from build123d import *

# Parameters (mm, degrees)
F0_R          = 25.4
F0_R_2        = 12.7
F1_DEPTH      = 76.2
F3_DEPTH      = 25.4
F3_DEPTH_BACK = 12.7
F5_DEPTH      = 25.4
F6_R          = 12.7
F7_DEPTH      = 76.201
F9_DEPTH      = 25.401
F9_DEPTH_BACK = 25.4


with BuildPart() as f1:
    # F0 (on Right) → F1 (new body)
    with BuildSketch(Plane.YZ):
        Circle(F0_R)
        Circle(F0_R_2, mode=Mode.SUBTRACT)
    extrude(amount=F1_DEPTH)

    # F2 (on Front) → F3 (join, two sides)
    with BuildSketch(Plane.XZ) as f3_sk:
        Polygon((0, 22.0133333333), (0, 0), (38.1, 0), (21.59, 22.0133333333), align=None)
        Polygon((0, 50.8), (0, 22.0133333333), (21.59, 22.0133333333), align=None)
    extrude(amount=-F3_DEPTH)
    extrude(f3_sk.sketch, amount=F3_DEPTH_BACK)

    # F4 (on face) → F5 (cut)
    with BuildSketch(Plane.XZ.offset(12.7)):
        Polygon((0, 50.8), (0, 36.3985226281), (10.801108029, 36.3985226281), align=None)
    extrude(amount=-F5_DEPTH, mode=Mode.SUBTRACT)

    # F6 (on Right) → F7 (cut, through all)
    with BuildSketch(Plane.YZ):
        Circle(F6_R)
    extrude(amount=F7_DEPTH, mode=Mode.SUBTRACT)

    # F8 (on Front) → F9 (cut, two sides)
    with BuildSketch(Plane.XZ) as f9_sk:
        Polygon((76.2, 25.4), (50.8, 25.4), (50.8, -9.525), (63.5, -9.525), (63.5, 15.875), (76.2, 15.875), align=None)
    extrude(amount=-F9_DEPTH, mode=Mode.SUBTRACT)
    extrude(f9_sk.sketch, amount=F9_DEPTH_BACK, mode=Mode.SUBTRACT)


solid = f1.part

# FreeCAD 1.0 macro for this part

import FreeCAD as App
import Part
import Sketcher
from FreeCAD import Vector
Q = App.Units.Quantity


def add_polygon(sketch, points):
    """Adds a closed chain of lines whose ends are joined by coincident constraints."""
    first, n = sketch.GeometryCount, len(points)
    for a, b in zip(points, points[1:] + points[:1]):
        sketch.addGeometry(Part.LineSegment(App.Vector(*a, 0), App.Vector(*b, 0)), False)
    for i in range(n):
        sketch.addConstraint(Sketcher.Constraint("Coincident", first + i, 2, first + (i + 1) % n, 1))

doc = App.newDocument("Part")
body = doc.addObject("PartDesign::Body", "Body")

sketch1 = body.newObject("Sketcher::SketchObject", "Sketch")
sketch1.AttachmentSupport = (doc.getObject("YZ_Plane"), [""])
sketch1.MapMode = "FlatFace"
sketch1.addGeometry([
    Part.Circle(Vector(0, 0, 0), Vector(0, 0, 1), 25.4),
    Part.Circle(Vector(0, 0, 0), Vector(0, 0, 1), 12.7),
], False)
sketch1.addConstraint([
    Sketcher.Constraint("Coincident", 0, 3, -1, 1),
    Sketcher.Constraint("Coincident", 1, 3, -1, 1),
    Sketcher.Constraint("Diameter", 0, Q("2 in")),
    Sketcher.Constraint("Diameter", 1, Q("1 in")),
])
pad1 = body.newObject("PartDesign::Pad", "Pad")
pad1.Profile = sketch1
pad1.Length = Q("3 in")

sketch2 = body.newObject("Sketcher::SketchObject", "Sketch001")
sketch2.AttachmentSupport = (doc.getObject("XZ_Plane"), [""])
sketch2.MapMode = "FlatFace"
add_polygon(sketch2, [(0, 0), (38.1, 0), (21.59, 22.013333), (0, 50.8)])
sketch2.addConstraint([
    Sketcher.Constraint("Horizontal", 0),
    Sketcher.Constraint("Vertical", 3),
    Sketcher.Constraint("Coincident", 3, 2, -1, 1),
    Sketcher.Constraint("Parallel", 1, 2),
    Sketcher.Constraint("DistanceY", 3, 2, 3, 1, Q("2 in")),
    Sketcher.Constraint("DistanceX", 0, 1, 0, 2, Q("1.5 in")),
    Sketcher.Constraint("DistanceX", -1, 1, 1, 2, Q("0.85 in")),
])
pad2 = body.newObject("PartDesign::Pad", "Pad001")
pad2.Profile = sketch2
pad2.Type = "TwoLengths"
pad2.Length = Q("1 in")
pad2.Length2 = Q("0.5 in")
pad2.Reversed = True

sketch3 = body.newObject("Sketcher::SketchObject", "Sketch002")
sketch3.AttachmentSupport = (doc.getObject("XZ_Plane"), [""])
sketch3.MapMode = "FlatFace"
sketch3.AttachmentOffset = App.Placement(Vector(0, 0, 0.5 * 25.4), App.Rotation())
add_polygon(sketch3, [(0, 50.8), (0, 36.398523), (10.801108, 36.398523)])
sketch3.addConstraint([
    Sketcher.Constraint("Vertical", 0),
    Sketcher.Constraint("Horizontal", 1),
    Sketcher.Constraint("PointOnObject", 0, 2, -2),
    Sketcher.Constraint("DistanceY", -1, 1, 2, 2, Q("2 in")),
    Sketcher.Constraint("DistanceX", 1, 1, 1, 2, 10.801108),
    Sketcher.Constraint("DistanceY", 0, 2, 0, 1, 14.401477),
])
pocket1 = body.newObject("PartDesign::Pocket", "Pocket")
pocket1.Profile = sketch3
pocket1.Length = Q("1 in")

sketch4 = body.newObject("Sketcher::SketchObject", "Sketch003")
sketch4.AttachmentSupport = (doc.getObject("YZ_Plane"), [""])
sketch4.MapMode = "FlatFace"
sketch4.addGeometry(Part.Circle(Vector(0, 0, 0), Vector(0, 0, 1), 12.7), False)
sketch4.addConstraint([
    Sketcher.Constraint("Coincident", 0, 3, -1, 1),
    Sketcher.Constraint("Diameter", 0, Q("1 in")),
])
pocket2 = body.newObject("PartDesign::Pocket", "Pocket001")
pocket2.Profile = sketch4
pocket2.Type = "ThroughAll"
pocket2.Reversed = True

sketch5 = body.newObject("Sketcher::SketchObject", "Sketch004")
sketch5.AttachmentSupport = (doc.getObject("XZ_Plane"), [""])
sketch5.MapMode = "FlatFace"
add_polygon(sketch5, [(76.2, 25.4), (50.8, 25.4), (50.8, -9.525), (63.5, -9.525), (63.5, 15.875), (76.2, 15.875)])
sketch5.addConstraint([
    Sketcher.Constraint("Horizontal", 0),
    Sketcher.Constraint("Vertical", 1),
    Sketcher.Constraint("Horizontal", 2),
    Sketcher.Constraint("Vertical", 3),
    Sketcher.Constraint("Horizontal", 4),
    Sketcher.Constraint("Vertical", 5),
    Sketcher.Constraint("Equal", 2, 4),
    Sketcher.Constraint("Equal", 0, 3),
    Sketcher.Constraint("DistanceX", 0, 2, 0, 1, Q("1 in")),
    Sketcher.Constraint("DistanceX", -1, 1, 0, 2, Q("2 in")),
    Sketcher.Constraint("DistanceY", -1, 1, 0, 2, Q("1 in")),
    Sketcher.Constraint("DistanceY", 1, 2, 1, 1, Q("1.375 in")),
])
pocket3 = body.newObject("PartDesign::Pocket", "Pocket002")
pocket3.Profile = sketch5
pocket3.Type = "ThroughAll"
pocket3.Midplane = True

doc.recompute()
